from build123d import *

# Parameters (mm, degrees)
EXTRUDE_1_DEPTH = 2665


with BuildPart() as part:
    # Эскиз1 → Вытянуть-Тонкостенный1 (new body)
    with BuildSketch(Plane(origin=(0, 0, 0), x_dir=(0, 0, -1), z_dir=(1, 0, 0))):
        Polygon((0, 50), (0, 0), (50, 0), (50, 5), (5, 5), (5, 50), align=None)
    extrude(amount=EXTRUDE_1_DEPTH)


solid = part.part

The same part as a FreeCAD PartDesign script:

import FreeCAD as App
import Part
import Sketcher
Q = App.Units.Quantity


def add_polygon(sketch, points):
    """Adds a closed chain of lines whose ends are joined by coincident constraints."""
    first, n = sketch.GeometryCount, len(points)
    for a, b in zip(points, points[1:] + points[:1]):
        sketch.addGeometry(Part.LineSegment(App.Vector(*a, 0), App.Vector(*b, 0)), False)
    for i in range(n):
        sketch.addConstraint(Sketcher.Constraint("Coincident", first + i, 2, first + (i + 1) % n, 1))

doc = App.newDocument("Part")
body = doc.addObject("PartDesign::Body", "Body")

# Sketch on YZ plane
sketch1 = doc.addObject("Sketcher::SketchObject", "Sketch")
body.addObject(sketch1)
sketch1.AttachmentSupport = (doc.YZ_Plane, [""])
sketch1.MapMode = "FlatFace"
add_polygon(sketch1, [(50, 0), (0, 0), (0, -50), (5, -50), (5, -5), (50, -5)])  # lines 0-5
sketch1.addConstraint([
    Sketcher.Constraint("Horizontal", 0),
    Sketcher.Constraint("Vertical", 1),
    Sketcher.Constraint("Horizontal", 2),
    Sketcher.Constraint("Vertical", 3),
    Sketcher.Constraint("Horizontal", 4),
    Sketcher.Constraint("Vertical", 5),
    Sketcher.Constraint("Coincident", 0, 2, -1, 1),
    Sketcher.Constraint("Equal", 0, 1),
    Sketcher.Constraint("Equal", 4, 3),
    Sketcher.Constraint("DistanceX", 0, 2, 0, 1, Q("50 mm")),
    Sketcher.Constraint("DistanceX", 2, 1, 2, 2, Q("5 mm")),
])
pad1 = doc.addObject("PartDesign::Pad", "Pad")
body.addObject(pad1)
pad1.Profile = sketch1
pad1.Length = 2665

doc.recompute()
